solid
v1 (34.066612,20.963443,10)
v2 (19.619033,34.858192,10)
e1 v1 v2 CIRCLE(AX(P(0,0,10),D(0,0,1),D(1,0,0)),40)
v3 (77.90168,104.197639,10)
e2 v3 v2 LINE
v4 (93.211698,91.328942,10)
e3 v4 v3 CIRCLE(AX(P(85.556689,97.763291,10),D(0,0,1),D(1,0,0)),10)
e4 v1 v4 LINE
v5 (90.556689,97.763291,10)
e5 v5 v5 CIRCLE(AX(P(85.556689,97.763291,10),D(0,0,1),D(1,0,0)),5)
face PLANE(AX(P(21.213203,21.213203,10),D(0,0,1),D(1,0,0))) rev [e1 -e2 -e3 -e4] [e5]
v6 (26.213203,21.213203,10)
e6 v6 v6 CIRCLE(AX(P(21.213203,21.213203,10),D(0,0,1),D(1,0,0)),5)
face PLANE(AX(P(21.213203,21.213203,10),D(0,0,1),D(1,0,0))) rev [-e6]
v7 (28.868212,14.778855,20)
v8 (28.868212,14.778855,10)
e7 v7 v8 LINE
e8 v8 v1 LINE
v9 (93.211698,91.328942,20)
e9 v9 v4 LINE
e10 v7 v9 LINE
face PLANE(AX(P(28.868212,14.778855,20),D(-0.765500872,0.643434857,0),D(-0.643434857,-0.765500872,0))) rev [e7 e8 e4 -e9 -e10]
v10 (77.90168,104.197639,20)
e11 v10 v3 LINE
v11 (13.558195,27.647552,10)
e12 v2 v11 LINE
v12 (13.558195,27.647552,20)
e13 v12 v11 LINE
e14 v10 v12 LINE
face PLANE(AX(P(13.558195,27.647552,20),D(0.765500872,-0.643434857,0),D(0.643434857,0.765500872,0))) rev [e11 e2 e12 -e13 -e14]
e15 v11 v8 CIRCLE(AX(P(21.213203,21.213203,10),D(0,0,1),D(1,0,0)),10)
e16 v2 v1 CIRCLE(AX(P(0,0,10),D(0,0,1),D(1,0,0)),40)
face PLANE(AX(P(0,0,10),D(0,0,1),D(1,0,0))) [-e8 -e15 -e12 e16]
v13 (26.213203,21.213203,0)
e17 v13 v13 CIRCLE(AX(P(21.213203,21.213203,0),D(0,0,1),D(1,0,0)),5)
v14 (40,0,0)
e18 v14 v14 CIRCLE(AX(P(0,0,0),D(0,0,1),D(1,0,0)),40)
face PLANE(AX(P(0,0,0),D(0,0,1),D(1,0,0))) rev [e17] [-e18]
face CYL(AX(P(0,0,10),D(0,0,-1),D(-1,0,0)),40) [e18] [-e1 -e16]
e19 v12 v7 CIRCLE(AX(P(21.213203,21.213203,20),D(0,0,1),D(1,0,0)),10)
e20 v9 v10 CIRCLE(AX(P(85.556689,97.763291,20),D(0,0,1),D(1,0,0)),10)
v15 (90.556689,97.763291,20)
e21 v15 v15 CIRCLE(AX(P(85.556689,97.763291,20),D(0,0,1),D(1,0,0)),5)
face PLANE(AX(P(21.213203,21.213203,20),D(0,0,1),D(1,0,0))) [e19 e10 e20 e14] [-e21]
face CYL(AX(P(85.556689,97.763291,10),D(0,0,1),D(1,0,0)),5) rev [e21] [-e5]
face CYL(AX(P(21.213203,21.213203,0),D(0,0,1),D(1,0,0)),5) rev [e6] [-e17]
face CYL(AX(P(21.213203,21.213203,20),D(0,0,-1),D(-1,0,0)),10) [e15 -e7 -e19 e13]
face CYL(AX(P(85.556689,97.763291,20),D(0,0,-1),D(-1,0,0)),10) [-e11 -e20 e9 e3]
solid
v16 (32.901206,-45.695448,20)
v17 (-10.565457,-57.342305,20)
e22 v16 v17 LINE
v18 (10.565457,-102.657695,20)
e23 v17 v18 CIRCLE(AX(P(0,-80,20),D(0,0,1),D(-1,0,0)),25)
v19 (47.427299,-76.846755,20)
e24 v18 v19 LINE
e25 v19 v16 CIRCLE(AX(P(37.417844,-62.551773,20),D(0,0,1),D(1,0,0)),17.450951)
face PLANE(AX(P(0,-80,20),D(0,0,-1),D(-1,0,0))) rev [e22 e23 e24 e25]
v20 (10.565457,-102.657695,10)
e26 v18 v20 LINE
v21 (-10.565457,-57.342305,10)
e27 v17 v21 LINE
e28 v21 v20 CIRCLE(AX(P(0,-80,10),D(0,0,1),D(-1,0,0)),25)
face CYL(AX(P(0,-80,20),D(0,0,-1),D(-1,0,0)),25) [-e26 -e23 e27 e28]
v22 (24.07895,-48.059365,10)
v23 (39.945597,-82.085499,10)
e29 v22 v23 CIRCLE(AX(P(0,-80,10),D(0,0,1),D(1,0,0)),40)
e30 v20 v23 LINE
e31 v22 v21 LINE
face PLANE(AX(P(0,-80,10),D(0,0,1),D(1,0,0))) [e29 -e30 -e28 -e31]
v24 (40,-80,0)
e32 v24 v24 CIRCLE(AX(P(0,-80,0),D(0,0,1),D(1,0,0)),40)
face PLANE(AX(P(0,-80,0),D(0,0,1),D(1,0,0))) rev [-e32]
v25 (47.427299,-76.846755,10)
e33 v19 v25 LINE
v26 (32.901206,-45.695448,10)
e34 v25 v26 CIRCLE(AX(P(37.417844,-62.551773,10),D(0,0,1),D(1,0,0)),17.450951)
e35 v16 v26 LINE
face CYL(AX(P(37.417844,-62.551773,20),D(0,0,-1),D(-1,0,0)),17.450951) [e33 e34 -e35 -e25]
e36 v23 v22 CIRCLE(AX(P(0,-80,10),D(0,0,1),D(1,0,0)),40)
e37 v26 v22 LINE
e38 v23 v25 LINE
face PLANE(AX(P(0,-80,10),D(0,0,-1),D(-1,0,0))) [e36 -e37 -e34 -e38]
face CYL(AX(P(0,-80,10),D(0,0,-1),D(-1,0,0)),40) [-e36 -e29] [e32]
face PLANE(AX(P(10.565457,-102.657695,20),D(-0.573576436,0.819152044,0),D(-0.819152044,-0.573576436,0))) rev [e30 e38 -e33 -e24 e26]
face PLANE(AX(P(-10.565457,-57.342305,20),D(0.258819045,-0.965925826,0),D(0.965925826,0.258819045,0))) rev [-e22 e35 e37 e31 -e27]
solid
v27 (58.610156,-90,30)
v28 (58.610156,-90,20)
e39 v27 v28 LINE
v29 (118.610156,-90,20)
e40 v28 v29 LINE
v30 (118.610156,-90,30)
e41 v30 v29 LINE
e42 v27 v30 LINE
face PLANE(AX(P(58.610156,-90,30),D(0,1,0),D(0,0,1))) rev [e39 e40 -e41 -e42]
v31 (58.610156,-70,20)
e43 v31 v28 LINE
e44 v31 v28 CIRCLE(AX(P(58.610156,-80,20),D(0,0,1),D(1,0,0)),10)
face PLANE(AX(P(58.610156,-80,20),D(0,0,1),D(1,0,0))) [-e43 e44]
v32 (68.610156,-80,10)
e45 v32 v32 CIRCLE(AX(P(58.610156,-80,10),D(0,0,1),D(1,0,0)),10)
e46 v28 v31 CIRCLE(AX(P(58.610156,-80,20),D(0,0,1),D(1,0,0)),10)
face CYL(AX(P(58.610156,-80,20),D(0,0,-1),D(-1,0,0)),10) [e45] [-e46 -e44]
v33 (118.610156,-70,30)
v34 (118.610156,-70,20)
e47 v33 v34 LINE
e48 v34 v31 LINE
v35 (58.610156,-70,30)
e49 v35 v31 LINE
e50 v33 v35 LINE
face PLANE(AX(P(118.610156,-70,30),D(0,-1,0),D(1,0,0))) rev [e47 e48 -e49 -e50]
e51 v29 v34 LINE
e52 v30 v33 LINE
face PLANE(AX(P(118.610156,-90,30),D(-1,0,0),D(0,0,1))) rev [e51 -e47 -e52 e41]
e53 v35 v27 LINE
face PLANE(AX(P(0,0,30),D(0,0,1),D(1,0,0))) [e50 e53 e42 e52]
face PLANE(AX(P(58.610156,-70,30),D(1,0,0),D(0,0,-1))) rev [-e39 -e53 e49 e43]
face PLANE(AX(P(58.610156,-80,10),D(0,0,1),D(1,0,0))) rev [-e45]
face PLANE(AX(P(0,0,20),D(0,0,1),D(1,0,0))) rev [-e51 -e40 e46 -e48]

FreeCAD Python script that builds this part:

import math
import FreeCAD as App
import Part
import Sketcher
from FreeCAD import Vector
Q = App.Units.Quantity


def add_polygon(sketch, points):
    """Adds a closed chain of lines whose ends are joined by coincident constraints."""
    first, n = sketch.GeometryCount, len(points)
    for a, b in zip(points, points[1:] + points[:1]):
        sketch.addGeometry(Part.LineSegment(App.Vector(*a, 0), App.Vector(*b, 0)), False)
    for i in range(n):
        sketch.addConstraint(Sketcher.Constraint("Coincident", first + i, 2, first + (i + 1) % n, 1))

doc = App.newDocument("Part")
params = doc.addObject("Spreadsheet::Sheet", "Params")
for row, (alias, value) in enumerate([
    ("sketch1_diameter", "80 mm"),
    ("pad1_length", "10 mm"),
    ("sketch2_diameter", "10 mm"),
    ("pocket1_length", "10 mm"),
    ("sketch3_radius", "10 mm"),
    ("sketch3_length", "100 mm"),
    ("pad2_length", "10 mm"),
    ("sketch4_diameter", "10 mm"),
    ("pocket2_length", "10 mm"),
    ("sketch5_diameter", "80 mm"),
    ("pad3_length", "10 mm"),
    ("sketch6_radius", "25 mm"),
    ("sketch6_length", "45 mm"),
    ("pad4_length", "10 mm"),
    ("sketch7_diameter", "20 mm"),
    ("pad5_length", "10 mm"),
    ("sketch8_width", "60 mm"),
    ("sketch8_height", "20 mm"),
    ("pad6_length", "10 mm"),
], start=1):
    params.set(f"A{row}", alias)
    params.set(f"B{row}", "=" + value)
    params.setAlias(f"B{row}", alias)

body = doc.addObject("PartDesign::Body", "Body")

# Sketch on XY plane
sketch1 = body.newObject("Sketcher::SketchObject", "Sketch")
sketch1.AttachmentSupport = (doc.getObject("XY_Plane"), [""])
sketch1.MapMode = "FlatFace"
sketch1.addGeometry(Part.Circle(Vector(0, 0, 0), Vector(0, 0, 1), 40), False)
sketch1.addConstraint(Sketcher.Constraint("Coincident", 0, 3, -1, 1))
sketch1.addConstraint(Sketcher.Constraint("Diameter", 0, Q("80 mm")))
sketch1.setExpression("Constraints[1]", "Params.sketch1_diameter")
pad1 = body.newObject("PartDesign::Pad", "Pad")
pad1.Profile = sketch1
pad1.setExpression("Length", "Params.pad1_length")

# Sketch on XY plane
sketch2 = body.newObject("Sketcher::SketchObject", "Sketch001")
sketch2.AttachmentSupport = (doc.getObject("XY_Plane"), [""])
sketch2.MapMode = "FlatFace"
sketch2.AttachmentOffset = App.Placement(Vector(0, 0, 10), App.Rotation())
sketch2.addGeometry(Part.Circle(Vector(21, 21, 0), Vector(0, 0, 1), 5), False)
sketch2.addConstraint(Sketcher.Constraint("Diameter", 0, Q("10 mm")))
sketch2.addConstraint(Sketcher.Constraint("DistanceX", -1, 1, 0, 3, Q("21.213203 mm")))
sketch2.addConstraint(Sketcher.Constraint("DistanceY", -1, 1, 0, 3, Q("21.213203 mm")))
sketch2.setExpression("Constraints[0]", "Params.sketch2_diameter")
pocket1 = body.newObject("PartDesign::Pocket", "Pocket")
pocket1.Profile = sketch2
pocket1.setExpression("Length", "Params.pocket1_length")

# Sketch on XY plane
sketch3 = body.newObject("Sketcher::SketchObject", "Sketch002")
sketch3.AttachmentSupport = (doc.getObject("XY_Plane"), [""])
sketch3.MapMode = "FlatFace"
sketch3.AttachmentOffset = App.Placement(Vector(0, 0, 10), App.Rotation())
sketch3.addGeometry(Part.LineSegment(Vector(78, 104, 0), Vector(14, 28, 0)), False)
sketch3.addGeometry(Part.ArcOfCircle(Part.Circle(Vector(21, 21, 0), Vector(0, 0, 1), 10), math.radians(140), math.radians(320)), False)
sketch3.addGeometry(Part.LineSegment(Vector(29, 15, 0), Vector(93, 91, 0)), False)
sketch3.addGeometry(Part.ArcOfCircle(Part.Circle(Vector(86, 98, 0), Vector(0, 0, 1), 10), math.radians(-40), math.radians(140)), False)
sketch3.addConstraint(Sketcher.Constraint("Tangent", 0, 2, 1, 1))
sketch3.addConstraint(Sketcher.Constraint("Tangent", 1, 2, 2, 1))
sketch3.addConstraint(Sketcher.Constraint("Tangent", 2, 2, 3, 1))
sketch3.addConstraint(Sketcher.Constraint("Tangent", 3, 2, 0, 1))
sketch3.addConstraint(Sketcher.Constraint("Equal", 1, 3))
sketch3.addConstraint(Sketcher.Constraint("Radius", 1, Q("10 mm")))
sketch3.addConstraint(Sketcher.Constraint("Distance", 0, Q("100 mm")))
sketch3.addConstraint(Sketcher.Constraint("DistanceX", -1, 1, 3, 3, Q("85.556689 mm")))
sketch3.addConstraint(Sketcher.Constraint("DistanceY", -1, 1, 3, 3, Q("97.763291 mm")))
sketch3.addConstraint(Sketcher.Constraint("DistanceX", -1, 1, 3, 2, Q("77.90168 mm")))
sketch3.setExpression("Constraints[5]", "Params.sketch3_radius")
sketch3.setExpression("Constraints[6]", "Params.sketch3_length")
pad2 = body.newObject("PartDesign::Pad", "Pad001")
pad2.Profile = sketch3
pad2.setExpression("Length", "Params.pad2_length")

# Sketch on XY plane
sketch4 = body.newObject("Sketcher::SketchObject", "Sketch003")
sketch4.AttachmentSupport = (doc.getObject("XY_Plane"), [""])
sketch4.MapMode = "FlatFace"
sketch4.AttachmentOffset = App.Placement(Vector(0, 0, 20), App.Rotation())
sketch4.addGeometry(Part.Circle(Vector(86, 98, 0), Vector(0, 0, 1), 5), False)
sketch4.addConstraint(Sketcher.Constraint("Diameter", 0, Q("10 mm")))
sketch4.addConstraint(Sketcher.Constraint("DistanceX", -1, 1, 0, 3, Q("85.556689 mm")))
sketch4.addConstraint(Sketcher.Constraint("DistanceY", -1, 1, 0, 3, Q("97.763291 mm")))
sketch4.setExpression("Constraints[0]", "Params.sketch4_diameter")
pocket2 = body.newObject("PartDesign::Pocket", "Pocket001")
pocket2.Profile = sketch4
pocket2.setExpression("Length", "Params.pocket2_length")
body2 = doc.addObject("PartDesign::Body", "Body001")

# Sketch on XY plane
sketch5 = body2.newObject("Sketcher::SketchObject", "Sketch004")
sketch5.AttachmentSupport = (doc.getObject("XY_Plane001"), [""])
sketch5.MapMode = "FlatFace"
sketch5.addGeometry(Part.Circle(Vector(0, -80, 0), Vector(0, 0, 1), 40), False)
sketch5.addConstraint(Sketcher.Constraint("PointOnObject", 0, 3, -2))
sketch5.addConstraint(Sketcher.Constraint("Diameter", 0, Q("80 mm")))
sketch5.addConstraint(Sketcher.Constraint("DistanceY", 0, 3, -1, 1, Q("80 mm")))
sketch5.setExpression("Constraints[1]", "Params.sketch5_diameter")
pad3 = body2.newObject("PartDesign::Pad", "Pad002")
pad3.Profile = sketch5
pad3.setExpression("Length", "Params.pad3_length")

# Sketch on XY plane
sketch6 = body2.newObject("Sketcher::SketchObject", "Sketch005")
sketch6.AttachmentSupport = (doc.getObject("XY_Plane001"), [""])
sketch6.MapMode = "FlatFace"
sketch6.AttachmentOffset = App.Placement(Vector(0, 0, 10), App.Rotation())
sketch6.addGeometry(Part.LineSegment(Vector(33, -46, 0), Vector(-11, -57, 0)), False)
sketch6.addGeometry(Part.ArcOfCircle(Part.Circle(Vector(0, -80, 0), Vector(0, 0, 1), 25), math.radians(115), math.radians(295)), False)
sketch6.addGeometry(Part.LineSegment(Vector(11, -103, 0), Vector(47, -77, 0)), False)
sketch6.addGeometry(Part.ArcOfCircle(Part.Circle(Vector(37, -63, 0), Vector(0, 0, 1), 17), math.radians(-55), math.radians(105)), False)
sketch6.addConstraint(Sketcher.Constraint("Coincident", 0, 2, 1, 1))
sketch6.addConstraint(Sketcher.Constraint("Coincident", 1, 2, 2, 1))
sketch6.addConstraint(Sketcher.Constraint("Tangent", 2, 2, 3, 1))
sketch6.addConstraint(Sketcher.Constraint("Tangent", 3, 2, 0, 1))
sketch6.addConstraint(Sketcher.Constraint("PointOnObject", 1, 3, -2))
sketch6.addConstraint(Sketcher.Constraint("Equal", 0, 2))
sketch6.addConstraint(Sketcher.Constraint("Radius", 1, Q("25 mm")))
sketch6.addConstraint(Sketcher.Constraint("Angle", 0, Q("-165 deg")))
sketch6.addConstraint(Sketcher.Constraint("Angle", 2, Q("35 deg")))
sketch6.addConstraint(Sketcher.Constraint("Distance", 0, Q("45 mm")))
sketch6.addConstraint(Sketcher.Constraint("DistanceY", 1, 3, -1, 1, Q("80 mm")))
sketch6.addConstraint(Sketcher.Constraint("DistanceX", -1, 1, 2, 2, Q("47.427299 mm")))
sketch6.setExpression("Constraints[6]", "Params.sketch6_radius")
sketch6.setExpression("Constraints[9]", "Params.sketch6_length")
pad4 = body2.newObject("PartDesign::Pad", "Pad003")
pad4.Profile = sketch6
pad4.setExpression("Length", "Params.pad4_length")
body3 = doc.addObject("PartDesign::Body", "Body002")

# Sketch on XY plane
sketch7 = body3.newObject("Sketcher::SketchObject", "Sketch006")
sketch7.AttachmentSupport = (doc.getObject("XY_Plane002"), [""])
sketch7.MapMode = "FlatFace"
sketch7.AttachmentOffset = App.Placement(Vector(0, 0, 10), App.Rotation())
sketch7.addGeometry(Part.Circle(Vector(59, -80, 0), Vector(0, 0, 1), 10), False)
sketch7.addConstraint(Sketcher.Constraint("Diameter", 0, Q("20 mm")))
sketch7.addConstraint(Sketcher.Constraint("DistanceY", 0, 3, -1, 1, Q("80 mm")))
sketch7.addConstraint(Sketcher.Constraint("DistanceX", -1, 1, 0, 3, Q("58.610156 mm")))
sketch7.setExpression("Constraints[0]", "Params.sketch7_diameter")
pad5 = body3.newObject("PartDesign::Pad", "Pad004")
pad5.Profile = sketch7
pad5.setExpression("Length", "Params.pad5_length")

# Sketch on XY plane
sketch8 = body3.newObject("Sketcher::SketchObject", "Sketch007")
sketch8.AttachmentSupport = (doc.getObject("XY_Plane002"), [""])
sketch8.MapMode = "FlatFace"
sketch8.AttachmentOffset = App.Placement(Vector(0, 0, 20), App.Rotation())
add_polygon(sketch8, [(59, -70), (59, -90), (119, -90), (119, -70)])  # lines 0-3
sketch8.addConstraint(Sketcher.Constraint("Vertical", 0))
sketch8.addConstraint(Sketcher.Constraint("Horizontal", 1))
sketch8.addConstraint(Sketcher.Constraint("Vertical", 2))
sketch8.addConstraint(Sketcher.Constraint("Horizontal", 3))
sketch8.addConstraint(Sketcher.Constraint("DistanceX", 1, 1, 1, 2, Q("60 mm")))
sketch8.addConstraint(Sketcher.Constraint("DistanceY", 0, 2, 0, 1, Q("20 mm")))
sketch8.addConstraint(Sketcher.Constraint("DistanceY", 0, 2, -1, 1, Q("90 mm")))
sketch8.addConstraint(Sketcher.Constraint("DistanceX", -1, 1, 0, 2, Q("58.610156 mm")))
sketch8.setExpression("Constraints[8]", "Params.sketch8_width")
sketch8.setExpression("Constraints[9]", "Params.sketch8_height")
pad6 = body3.newObject("PartDesign::Pad", "Pad005")
pad6.Profile = sketch8
pad6.setExpression("Length", "Params.pad6_length")

doc.recompute()
